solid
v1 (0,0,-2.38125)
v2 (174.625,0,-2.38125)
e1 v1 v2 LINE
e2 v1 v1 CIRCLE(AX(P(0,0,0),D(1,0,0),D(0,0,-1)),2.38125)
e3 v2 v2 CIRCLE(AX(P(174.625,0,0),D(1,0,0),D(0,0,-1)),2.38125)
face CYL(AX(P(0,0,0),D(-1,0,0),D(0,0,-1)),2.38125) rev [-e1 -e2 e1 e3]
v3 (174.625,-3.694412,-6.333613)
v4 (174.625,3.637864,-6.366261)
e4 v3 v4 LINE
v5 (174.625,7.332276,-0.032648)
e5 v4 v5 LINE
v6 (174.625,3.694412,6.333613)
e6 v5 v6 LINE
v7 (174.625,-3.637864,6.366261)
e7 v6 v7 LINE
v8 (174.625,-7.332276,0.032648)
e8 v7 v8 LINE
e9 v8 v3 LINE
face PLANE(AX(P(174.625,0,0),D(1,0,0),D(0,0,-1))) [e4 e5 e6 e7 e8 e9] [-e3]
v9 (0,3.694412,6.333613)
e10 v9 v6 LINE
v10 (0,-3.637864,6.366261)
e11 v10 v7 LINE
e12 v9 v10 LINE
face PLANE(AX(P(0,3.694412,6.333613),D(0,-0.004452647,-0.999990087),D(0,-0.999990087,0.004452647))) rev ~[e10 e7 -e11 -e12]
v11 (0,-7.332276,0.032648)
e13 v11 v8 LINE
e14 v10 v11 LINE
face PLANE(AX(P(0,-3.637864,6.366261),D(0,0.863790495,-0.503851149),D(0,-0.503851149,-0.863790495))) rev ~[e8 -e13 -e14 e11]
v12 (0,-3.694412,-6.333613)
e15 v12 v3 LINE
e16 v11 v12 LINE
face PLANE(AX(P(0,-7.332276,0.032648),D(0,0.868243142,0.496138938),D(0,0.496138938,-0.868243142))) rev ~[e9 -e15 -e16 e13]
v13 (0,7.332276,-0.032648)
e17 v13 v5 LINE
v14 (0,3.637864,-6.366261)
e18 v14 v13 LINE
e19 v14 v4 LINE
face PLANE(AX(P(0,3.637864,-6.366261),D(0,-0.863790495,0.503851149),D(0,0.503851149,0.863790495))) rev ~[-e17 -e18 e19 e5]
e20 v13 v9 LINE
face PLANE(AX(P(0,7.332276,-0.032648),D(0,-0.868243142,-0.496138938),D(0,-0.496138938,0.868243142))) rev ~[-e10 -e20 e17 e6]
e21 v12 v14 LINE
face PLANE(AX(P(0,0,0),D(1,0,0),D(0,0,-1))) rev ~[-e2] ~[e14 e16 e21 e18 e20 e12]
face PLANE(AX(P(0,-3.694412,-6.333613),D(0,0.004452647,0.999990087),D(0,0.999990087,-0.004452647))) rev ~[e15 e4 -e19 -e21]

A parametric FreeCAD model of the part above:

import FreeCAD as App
import Part
import Sketcher
from FreeCAD import Vector
Q = App.Units.Quantity


def add_polygon(sketch, points):
    """Adds a closed chain of lines whose ends are joined by coincident constraints."""
    first, n = sketch.GeometryCount, len(points)
    for a, b in zip(points, points[1:] + points[:1]):
        sketch.addGeometry(Part.LineSegment(App.Vector(*a, 0), App.Vector(*b, 0)), False)
    for i in range(n):
        sketch.addConstraint(Sketcher.Constraint("Coincident", first + i, 2, first + (i + 1) % n, 1))

doc = App.newDocument("Part")
body = doc.addObject("PartDesign::Body", "Body")

sketch1 = doc.addObject("Sketcher::SketchObject", "Sketch")
body.addObject(sketch1)
sketch1.AttachmentSupport = (doc.YZ_Plane, [""])
sketch1.MapMode = "FlatFace"
add_polygon(sketch1, [(3.6, -6.4), (7.3, 0), (3.7, 6.3), (-3.6, 6.4), (-7.3, 0), (-3.7, -6.3)])
sketch1.addGeometry(Part.Circle(Vector(0, 0, 0), Vector(0, 0, 1), 2.4), False)
sketch1.addConstraint([
    Sketcher.Constraint("Coincident", 6, 3, -1, 1),
    Sketcher.Constraint("Symmetric", 0, 2, 3, 2, -1, 1),
    Sketcher.Constraint("Symmetric", 1, 2, 4, 2, -1, 1),
    Sketcher.Constraint("Symmetric", 2, 2, 5, 2, -1, 1),
    Sketcher.Constraint("Equal", 0, 1),
    Sketcher.Constraint("Equal", 1, 2),
    Sketcher.Constraint("Diameter", 6, Q("0.1875 in")),
    Sketcher.Constraint("Distance", 0, 7.332348),
    Sketcher.Constraint("DistanceY", 0, 2, -1, 1, 0.032648),
    Sketcher.Constraint("DistanceY", -1, 1, 2, 2, 6.366261),
    Sketcher.Constraint("DistanceY", 0, 2, 1, 2, 6.366261),
])
pad1 = doc.addObject("PartDesign::Pad", "Pad")
body.addObject(pad1)
pad1.Profile = sketch1
pad1.Length = Q("6.875 in")

doc.recompute()
